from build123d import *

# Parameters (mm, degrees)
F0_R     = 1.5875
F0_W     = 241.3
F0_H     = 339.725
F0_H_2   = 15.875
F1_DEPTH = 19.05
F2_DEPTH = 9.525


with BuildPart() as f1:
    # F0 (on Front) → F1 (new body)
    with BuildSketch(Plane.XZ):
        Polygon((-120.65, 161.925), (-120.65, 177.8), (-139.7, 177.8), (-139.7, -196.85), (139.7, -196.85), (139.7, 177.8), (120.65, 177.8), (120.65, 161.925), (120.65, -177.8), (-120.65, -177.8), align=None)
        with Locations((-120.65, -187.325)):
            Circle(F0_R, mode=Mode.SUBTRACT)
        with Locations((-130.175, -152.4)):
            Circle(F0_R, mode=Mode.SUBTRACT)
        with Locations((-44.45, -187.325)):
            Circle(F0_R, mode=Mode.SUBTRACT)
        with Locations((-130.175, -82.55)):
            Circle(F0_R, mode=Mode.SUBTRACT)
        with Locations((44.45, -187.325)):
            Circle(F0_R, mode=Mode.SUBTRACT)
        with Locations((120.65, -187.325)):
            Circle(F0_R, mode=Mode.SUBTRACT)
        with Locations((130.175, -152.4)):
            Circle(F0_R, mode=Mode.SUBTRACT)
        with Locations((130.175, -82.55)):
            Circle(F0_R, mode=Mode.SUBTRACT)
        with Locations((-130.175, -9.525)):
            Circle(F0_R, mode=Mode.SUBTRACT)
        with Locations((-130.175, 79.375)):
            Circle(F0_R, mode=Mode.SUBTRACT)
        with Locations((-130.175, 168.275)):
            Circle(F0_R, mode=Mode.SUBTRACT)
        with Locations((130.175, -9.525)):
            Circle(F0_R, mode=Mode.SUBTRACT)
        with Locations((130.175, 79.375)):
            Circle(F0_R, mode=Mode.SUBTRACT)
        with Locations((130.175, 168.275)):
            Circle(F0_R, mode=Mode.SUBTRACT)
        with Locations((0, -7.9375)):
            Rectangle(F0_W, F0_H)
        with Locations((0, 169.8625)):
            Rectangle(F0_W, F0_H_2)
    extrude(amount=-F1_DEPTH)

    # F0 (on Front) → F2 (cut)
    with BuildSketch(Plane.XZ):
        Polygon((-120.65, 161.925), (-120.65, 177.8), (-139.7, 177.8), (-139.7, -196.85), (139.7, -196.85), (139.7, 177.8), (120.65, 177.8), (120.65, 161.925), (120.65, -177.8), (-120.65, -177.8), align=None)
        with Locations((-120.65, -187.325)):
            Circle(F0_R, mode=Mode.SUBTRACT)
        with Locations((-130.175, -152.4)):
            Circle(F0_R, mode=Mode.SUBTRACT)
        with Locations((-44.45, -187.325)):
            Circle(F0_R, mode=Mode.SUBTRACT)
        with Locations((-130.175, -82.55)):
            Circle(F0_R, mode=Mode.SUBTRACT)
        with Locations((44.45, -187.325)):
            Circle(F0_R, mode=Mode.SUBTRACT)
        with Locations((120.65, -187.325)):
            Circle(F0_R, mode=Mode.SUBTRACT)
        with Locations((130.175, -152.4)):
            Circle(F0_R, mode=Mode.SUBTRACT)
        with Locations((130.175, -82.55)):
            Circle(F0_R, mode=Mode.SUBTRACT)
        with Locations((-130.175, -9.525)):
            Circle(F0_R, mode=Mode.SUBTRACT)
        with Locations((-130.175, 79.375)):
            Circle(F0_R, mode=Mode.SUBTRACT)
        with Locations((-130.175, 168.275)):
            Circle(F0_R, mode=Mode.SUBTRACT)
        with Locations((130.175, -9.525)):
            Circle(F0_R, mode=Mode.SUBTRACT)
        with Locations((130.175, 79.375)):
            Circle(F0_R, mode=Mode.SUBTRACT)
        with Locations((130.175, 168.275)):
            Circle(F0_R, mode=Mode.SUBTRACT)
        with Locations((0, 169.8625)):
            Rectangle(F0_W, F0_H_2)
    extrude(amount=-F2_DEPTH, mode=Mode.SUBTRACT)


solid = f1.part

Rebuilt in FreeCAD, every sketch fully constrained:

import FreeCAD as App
import Part
import Sketcher
Q = App.Units.Quantity


def add_polygon(sketch, points):
    """Adds a closed chain of lines whose ends are joined by coincident constraints."""
    first, n = sketch.GeometryCount, len(points)
    for a, b in zip(points, points[1:] + points[:1]):
        sketch.addGeometry(Part.LineSegment(App.Vector(*a, 0), App.Vector(*b, 0)), False)
    for i in range(n):
        sketch.addConstraint(Sketcher.Constraint("Coincident", first + i, 2, first + (i + 1) % n, 1))

doc = App.newDocument("Part")
params = doc.addObject("Spreadsheet::Sheet", "Params")
for row, (alias, value) in enumerate([
    ("sketch1_width", "11 in"),
    ("sketch1_diameter", "0.125 in"),
    ("sketch1_height", "14.75 in"),
    ("pad1_length", "0.75 in"),
    ("sketch2_width", "11 in"),
    ("sketch2_diameter", "0.125 in"),
    ("sketch2_width2", "9.5 in"),
    ("sketch2_height", "14.75 in"),
    ("sketch2_height2", "13.375 in"),
    ("pocket1_length", "0.375 in"),
], start=1):
    params.set(f"A{row}", alias)
    params.set(f"B{row}", "=" + value)
    params.setAlias(f"B{row}", alias)

body = doc.addObject("PartDesign::Body", "Body")

sketch1 = body.newObject("Sketcher::SketchObject", "Sketch")
sketch1.AttachmentSupport = (doc.getObject("XZ_Plane"), [""])
sketch1.MapMode = "FlatFace"
add_polygon(sketch1, [(-139.7, 177.8), (-139.7, -196.8), (139.7, -196.8), (139.7, 177.8)])
sketch1.addGeometry(Part.Circle(App.Vector(-120.7, -187.3, 0), App.Vector(0, 0, 1), 1.6), False)
sketch1.addGeometry(Part.Circle(App.Vector(-130.2, -152.4, 0), App.Vector(0, 0, 1), 1.6), False)
sketch1.addGeometry(Part.Circle(App.Vector(-44.5, -187.3, 0), App.Vector(0, 0, 1), 1.6), False)
sketch1.addGeometry(Part.Circle(App.Vector(-130.2, -82.5, 0), App.Vector(0, 0, 1), 1.6), False)
sketch1.addGeometry(Part.Circle(App.Vector(-130.2, -9.5, 0), App.Vector(0, 0, 1), 1.6), False)
sketch1.addGeometry(Part.Circle(App.Vector(44.5, -187.3, 0), App.Vector(0, 0, 1), 1.6), False)
sketch1.addGeometry(Part.Circle(App.Vector(120.7, -187.3, 0), App.Vector(0, 0, 1), 1.6), False)
sketch1.addGeometry(Part.Circle(App.Vector(130.2, -152.4, 0), App.Vector(0, 0, 1), 1.6), False)
sketch1.addGeometry(Part.Circle(App.Vector(130.2, -82.5, 0), App.Vector(0, 0, 1), 1.6), False)
sketch1.addGeometry(Part.Circle(App.Vector(130.2, -9.5, 0), App.Vector(0, 0, 1), 1.6), False)
sketch1.addGeometry(Part.Circle(App.Vector(-130.2, 79.4, 0), App.Vector(0, 0, 1), 1.6), False)
sketch1.addGeometry(Part.Circle(App.Vector(-130.2, 168.3, 0), App.Vector(0, 0, 1), 1.6), False)
sketch1.addGeometry(Part.Circle(App.Vector(130.2, 79.4, 0), App.Vector(0, 0, 1), 1.6), False)
sketch1.addGeometry(Part.Circle(App.Vector(130.2, 168.3, 0), App.Vector(0, 0, 1), 1.6), False)
sketch1.addConstraint([
    Sketcher.Constraint("Vertical", 0),
    Sketcher.Constraint("Horizontal", 1),
    Sketcher.Constraint("Vertical", 2),
    Sketcher.Constraint("Horizontal", 3),
    Sketcher.Constraint("Equal", 4, 5),
    Sketcher.Constraint("Equal", 5, 6),
    Sketcher.Constraint("Equal", 6, 7),
    Sketcher.Constraint("Equal", 7, 8),
    Sketcher.Constraint("Equal", 8, 9),
    Sketcher.Constraint("Equal", 9, 10),
    Sketcher.Constraint("Equal", 10, 11),
    Sketcher.Constraint("Equal", 11, 12),
    Sketcher.Constraint("Equal", 12, 13),
    Sketcher.Constraint("Equal", 13, 14),
    Sketcher.Constraint("Equal", 14, 15),
    Sketcher.Constraint("Equal", 15, 16),
    Sketcher.Constraint("Equal", 16, 17),
    Sketcher.Constraint("Symmetric", 6, 3, 9, 3, -2),
    Sketcher.Constraint("Symmetric", 4, 3, 10, 3, -2),
    Sketcher.Constraint("Symmetric", 5, 3, 11, 3, -2),
    Sketcher.Constraint("Symmetric", 7, 3, 12, 3, -2),
    Sketcher.Constraint("Symmetric", 8, 3, 13, 3, -2),
    Sketcher.Constraint("Symmetric", 14, 3, 16, 3, -2),
    Sketcher.Constraint("Symmetric", 15, 3, 17, 3, -2),
    Sketcher.Constraint("Horizontal", 4, 3, 6, 3),
    Sketcher.Constraint("Vertical", 5, 3, 7, 3),
    Sketcher.Constraint("Vertical", 7, 3, 8, 3),
    Sketcher.Constraint("Vertical", 8, 3, 14, 3),
    Sketcher.Constraint("Vertical", 14, 3, 15, 3),
    Sketcher.Constraint("DistanceX", 1, 1, 1, 2, Q("11 in")),
    Sketcher.Constraint("Diameter", 4, Q("0.125 in")),
    Sketcher.Constraint("DistanceY", 5, 3, -1, 1, Q("6 in")),
    Sketcher.Constraint("DistanceY", -1, 1, 2, 2, Q("7 in")),
    Sketcher.Constraint("DistanceX", 4, 3, 6, 3, Q("3 in")),
    Sketcher.Constraint("DistanceY", 4, 3, 8, 3, Q("7 in")),
    Sketcher.Constraint("DistanceY", 8, 3, 15, 3, Q("7 in")),
    Sketcher.Constraint("DistanceY", 0, 2, 0, 1, Q("14.75 in")),
    Sketcher.Constraint("DistanceX", 0, 2, -1, 1, Q("5.5 in")),
    Sketcher.Constraint("DistanceX", 6, 3, 9, 3, Q("3.5 in")),
    Sketcher.Constraint("DistanceY", 8, 3, 14, 3, Q("3.5 in")),
    Sketcher.Constraint("DistanceY", 0, 2, 7, 3, Q("4.5 in")),
    Sketcher.Constraint("DistanceX", 5, 3, 11, 3, Q("10.25 in")),
    Sketcher.Constraint("DistanceY", 4, 3, -1, 1, Q("7.375 in")),
])
sketch1.setExpression("Constraints[33]", "Params.sketch1_width")
sketch1.setExpression("Constraints[34]", "Params.sketch1_diameter")
sketch1.setExpression("Constraints[40]", "Params.sketch1_height")
pad1 = body.newObject("PartDesign::Pad", "Pad")
pad1.Profile = sketch1
pad1.setExpression("Length", "Params.pad1_length")
pad1.Reversed = True

sketch2 = body.newObject("Sketcher::SketchObject", "Sketch001")
sketch2.AttachmentSupport = (doc.getObject("XZ_Plane"), [""])
sketch2.MapMode = "FlatFace"
add_polygon(sketch2, [(-139.7, 177.8), (-139.7, -196.8), (139.7, -196.8), (139.7, 177.8)])
add_polygon(sketch2, [(-120.7, -177.8), (-120.7, 161.9), (120.7, 161.9), (120.7, -177.8)])
sketch2.addGeometry(Part.Circle(App.Vector(-120.7, -187.3, 0), App.Vector(0, 0, 1), 1.6), False)
sketch2.addGeometry(Part.Circle(App.Vector(-130.2, -152.4, 0), App.Vector(0, 0, 1), 1.6), False)
sketch2.addGeometry(Part.Circle(App.Vector(-44.5, -187.3, 0), App.Vector(0, 0, 1), 1.6), False)
sketch2.addGeometry(Part.Circle(App.Vector(-130.2, -82.5, 0), App.Vector(0, 0, 1), 1.6), False)
sketch2.addGeometry(Part.Circle(App.Vector(-130.2, -9.5, 0), App.Vector(0, 0, 1), 1.6), False)
sketch2.addGeometry(Part.Circle(App.Vector(44.5, -187.3, 0), App.Vector(0, 0, 1), 1.6), False)
sketch2.addGeometry(Part.Circle(App.Vector(120.7, -187.3, 0), App.Vector(0, 0, 1), 1.6), False)
sketch2.addGeometry(Part.Circle(App.Vector(130.2, -152.4, 0), App.Vector(0, 0, 1), 1.6), False)
sketch2.addGeometry(Part.Circle(App.Vector(130.2, -82.5, 0), App.Vector(0, 0, 1), 1.6), False)
sketch2.addGeometry(Part.Circle(App.Vector(130.2, -9.5, 0), App.Vector(0, 0, 1), 1.6), False)
sketch2.addGeometry(Part.Circle(App.Vector(-130.2, 79.4, 0), App.Vector(0, 0, 1), 1.6), False)
sketch2.addGeometry(Part.Circle(App.Vector(-130.2, 168.3, 0), App.Vector(0, 0, 1), 1.6), False)
sketch2.addGeometry(Part.Circle(App.Vector(130.2, 79.4, 0), App.Vector(0, 0, 1), 1.6), False)
sketch2.addGeometry(Part.Circle(App.Vector(130.2, 168.3, 0), App.Vector(0, 0, 1), 1.6), False)
sketch2.addConstraint([
    Sketcher.Constraint("Vertical", 0),
    Sketcher.Constraint("Horizontal", 1),
    Sketcher.Constraint("Vertical", 2),
    Sketcher.Constraint("Horizontal", 3),
    Sketcher.Constraint("Vertical", 4),
    Sketcher.Constraint("Horizontal", 5),
    Sketcher.Constraint("Vertical", 6),
    Sketcher.Constraint("Horizontal", 7),
    Sketcher.Constraint("Equal", 8, 9),
    Sketcher.Constraint("Equal", 9, 10),
    Sketcher.Constraint("Equal", 10, 11),
    Sketcher.Constraint("Equal", 11, 12),
    Sketcher.Constraint("Equal", 12, 13),
    Sketcher.Constraint("Equal", 13, 14),
    Sketcher.Constraint("Equal", 14, 15),
    Sketcher.Constraint("Equal", 15, 16),
    Sketcher.Constraint("Equal", 16, 17),
    Sketcher.Constraint("Equal", 17, 18),
    Sketcher.Constraint("Equal", 18, 19),
    Sketcher.Constraint("Equal", 19, 20),
    Sketcher.Constraint("Equal", 20, 21),
    Sketcher.Constraint("Symmetric", 10, 3, 13, 3, -2),
    Sketcher.Constraint("Symmetric", 8, 3, 14, 3, -2),
    Sketcher.Constraint("Symmetric", 9, 3, 15, 3, -2),
    Sketcher.Constraint("Symmetric", 11, 3, 16, 3, -2),
    Sketcher.Constraint("Symmetric", 12, 3, 17, 3, -2),
    Sketcher.Constraint("Symmetric", 18, 3, 20, 3, -2),
    Sketcher.Constraint("Symmetric", 19, 3, 21, 3, -2),
    Sketcher.Constraint("Horizontal", 8, 3, 10, 3),
    Sketcher.Constraint("Vertical", 9, 3, 11, 3),
    Sketcher.Constraint("Vertical", 11, 3, 12, 3),
    Sketcher.Constraint("Vertical", 12, 3, 18, 3),
    Sketcher.Constraint("Vertical", 18, 3, 19, 3),
    Sketcher.Constraint("Vertical", 8, 3, 4, 2),
    Sketcher.Constraint("Vertical", 14, 3, 5, 2),
    Sketcher.Constraint("DistanceX", 1, 1, 1, 2, Q("11 in")),
    Sketcher.Constraint("Diameter", 8, Q("0.125 in")),
    Sketcher.Constraint("DistanceX", 5, 1, 5, 2, Q("9.5 in")),
    Sketcher.Constraint("DistanceY", 9, 3, -1, 1, Q("6 in")),
    Sketcher.Constraint("DistanceY", -1, 1, 2, 2, Q("7 in")),
    Sketcher.Constraint("DistanceY", 6, 2, -1, 1, Q("7 in")),
    Sketcher.Constraint("DistanceX", 8, 3, 10, 3, Q("3 in")),
    Sketcher.Constraint("DistanceY", 8, 3, 12, 3, Q("7 in")),
    Sketcher.Constraint("DistanceY", 12, 3, 19, 3, Q("7 in")),
    Sketcher.Constraint("DistanceY", 0, 2, 0, 1, Q("14.75 in")),
    Sketcher.Constraint("DistanceX", 0, 2, -1, 1, Q("5.5 in")),
    Sketcher.Constraint("DistanceY", 12, 3, 18, 3, Q("3.5 in")),
    Sketcher.Constraint("DistanceY", 0, 2, 11, 3, Q("4.5 in")),
    Sketcher.Constraint("DistanceY", 4, 1, 4, 2, Q("13.375 in")),
    Sketcher.Constraint("DistanceX", 9, 3, 15, 3, Q("10.25 in")),
    Sketcher.Constraint("DistanceY", 4, 2, 19, 3, Q("0.25 in")),
])
sketch2.setExpression("Constraints[43]", "Params.sketch2_width")
sketch2.setExpression("Constraints[44]", "Params.sketch2_diameter")
sketch2.setExpression("Constraints[45]", "Params.sketch2_width2")
sketch2.setExpression("Constraints[52]", "Params.sketch2_height")
sketch2.setExpression("Constraints[56]", "Params.sketch2_height2")
pocket1 = body.newObject("PartDesign::Pocket", "Pocket")
pocket1.Profile = sketch2
pocket1.setExpression("Length", "Params.pocket1_length")

doc.recompute()
